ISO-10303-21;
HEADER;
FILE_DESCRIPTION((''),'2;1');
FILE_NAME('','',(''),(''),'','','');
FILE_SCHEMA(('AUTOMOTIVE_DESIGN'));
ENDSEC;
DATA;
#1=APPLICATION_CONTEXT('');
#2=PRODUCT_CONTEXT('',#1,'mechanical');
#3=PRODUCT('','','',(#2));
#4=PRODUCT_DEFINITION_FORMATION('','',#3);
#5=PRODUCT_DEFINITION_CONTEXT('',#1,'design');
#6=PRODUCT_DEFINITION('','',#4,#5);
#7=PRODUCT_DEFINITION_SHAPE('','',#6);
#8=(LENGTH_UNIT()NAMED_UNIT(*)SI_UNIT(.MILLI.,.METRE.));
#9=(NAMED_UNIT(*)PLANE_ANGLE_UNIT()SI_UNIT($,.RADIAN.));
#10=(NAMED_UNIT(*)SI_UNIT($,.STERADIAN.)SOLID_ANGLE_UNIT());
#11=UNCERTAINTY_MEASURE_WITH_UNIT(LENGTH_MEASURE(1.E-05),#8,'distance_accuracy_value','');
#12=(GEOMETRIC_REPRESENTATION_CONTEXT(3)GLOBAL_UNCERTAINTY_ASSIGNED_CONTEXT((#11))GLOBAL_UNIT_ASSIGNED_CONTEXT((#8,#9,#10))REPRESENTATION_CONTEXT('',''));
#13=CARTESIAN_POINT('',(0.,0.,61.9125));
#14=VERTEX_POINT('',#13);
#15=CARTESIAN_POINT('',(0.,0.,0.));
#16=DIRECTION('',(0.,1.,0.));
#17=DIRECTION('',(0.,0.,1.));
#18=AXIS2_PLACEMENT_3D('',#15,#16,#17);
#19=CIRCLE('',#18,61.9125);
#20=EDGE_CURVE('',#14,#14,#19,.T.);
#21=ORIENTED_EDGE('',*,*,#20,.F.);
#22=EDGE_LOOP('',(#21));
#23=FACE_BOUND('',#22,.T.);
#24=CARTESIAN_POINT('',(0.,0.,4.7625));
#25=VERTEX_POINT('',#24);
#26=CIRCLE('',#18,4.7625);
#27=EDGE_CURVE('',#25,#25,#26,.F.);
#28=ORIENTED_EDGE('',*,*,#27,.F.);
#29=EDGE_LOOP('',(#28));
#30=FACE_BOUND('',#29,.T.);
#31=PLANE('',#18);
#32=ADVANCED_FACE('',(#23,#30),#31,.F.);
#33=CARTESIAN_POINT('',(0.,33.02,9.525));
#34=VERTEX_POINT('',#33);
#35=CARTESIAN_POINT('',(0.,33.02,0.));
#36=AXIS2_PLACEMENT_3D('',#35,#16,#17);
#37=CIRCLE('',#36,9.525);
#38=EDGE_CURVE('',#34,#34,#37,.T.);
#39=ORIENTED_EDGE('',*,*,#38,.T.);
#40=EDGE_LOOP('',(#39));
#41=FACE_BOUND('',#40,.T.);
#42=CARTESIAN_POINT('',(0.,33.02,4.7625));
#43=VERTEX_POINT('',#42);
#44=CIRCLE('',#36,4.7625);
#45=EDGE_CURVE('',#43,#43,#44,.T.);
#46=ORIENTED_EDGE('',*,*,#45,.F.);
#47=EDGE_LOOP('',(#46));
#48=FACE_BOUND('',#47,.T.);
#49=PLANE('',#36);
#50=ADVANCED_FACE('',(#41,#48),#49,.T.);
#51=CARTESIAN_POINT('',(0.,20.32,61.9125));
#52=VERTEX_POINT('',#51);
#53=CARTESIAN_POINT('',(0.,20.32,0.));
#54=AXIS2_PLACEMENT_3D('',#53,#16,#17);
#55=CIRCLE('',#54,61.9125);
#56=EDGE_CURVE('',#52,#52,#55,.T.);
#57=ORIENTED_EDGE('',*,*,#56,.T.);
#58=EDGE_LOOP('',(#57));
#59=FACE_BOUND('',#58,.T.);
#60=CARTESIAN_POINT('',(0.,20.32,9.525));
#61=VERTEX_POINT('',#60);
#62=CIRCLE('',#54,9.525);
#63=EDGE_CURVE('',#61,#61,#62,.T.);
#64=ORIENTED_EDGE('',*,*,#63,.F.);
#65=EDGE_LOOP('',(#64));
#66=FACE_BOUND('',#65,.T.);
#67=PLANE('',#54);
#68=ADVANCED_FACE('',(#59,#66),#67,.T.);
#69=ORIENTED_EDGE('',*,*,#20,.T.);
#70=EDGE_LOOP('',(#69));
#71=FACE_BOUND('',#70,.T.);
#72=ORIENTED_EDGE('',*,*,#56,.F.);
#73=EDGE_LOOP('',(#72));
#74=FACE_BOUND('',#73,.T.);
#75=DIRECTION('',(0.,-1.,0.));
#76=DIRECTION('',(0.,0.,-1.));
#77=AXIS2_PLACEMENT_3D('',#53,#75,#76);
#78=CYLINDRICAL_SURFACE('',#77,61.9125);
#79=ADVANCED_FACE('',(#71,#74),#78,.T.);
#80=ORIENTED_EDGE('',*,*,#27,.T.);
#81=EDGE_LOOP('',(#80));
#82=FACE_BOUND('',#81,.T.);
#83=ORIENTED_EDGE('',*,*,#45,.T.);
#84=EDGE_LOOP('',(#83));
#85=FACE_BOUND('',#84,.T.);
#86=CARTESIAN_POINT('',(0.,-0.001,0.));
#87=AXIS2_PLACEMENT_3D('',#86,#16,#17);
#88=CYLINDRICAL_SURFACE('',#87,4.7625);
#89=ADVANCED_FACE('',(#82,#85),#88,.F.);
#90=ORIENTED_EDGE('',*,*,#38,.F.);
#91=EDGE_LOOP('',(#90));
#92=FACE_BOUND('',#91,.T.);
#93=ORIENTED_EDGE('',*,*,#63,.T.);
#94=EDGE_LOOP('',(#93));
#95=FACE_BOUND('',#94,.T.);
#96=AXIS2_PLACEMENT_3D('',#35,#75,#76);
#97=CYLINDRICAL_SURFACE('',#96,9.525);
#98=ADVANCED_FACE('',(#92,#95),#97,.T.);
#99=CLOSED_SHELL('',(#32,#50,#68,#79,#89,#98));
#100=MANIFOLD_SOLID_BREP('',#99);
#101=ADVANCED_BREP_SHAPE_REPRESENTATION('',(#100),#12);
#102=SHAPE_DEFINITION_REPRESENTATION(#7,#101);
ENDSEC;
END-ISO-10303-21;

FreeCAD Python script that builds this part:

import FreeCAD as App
import Part
import Sketcher
Q = App.Units.Quantity

doc = App.newDocument("Part")
body = doc.addObject("PartDesign::Body", "Body")

# Sketch on XZ plane
sketch1 = doc.addObject("Sketcher::SketchObject", "Sketch")
body.addObject(sketch1)
sketch1.AttachmentSupport = (doc.XZ_Plane, [""])
sketch1.MapMode = "FlatFace"
sketch1.addGeometry(Part.Circle(App.Vector(0, 0, 0), App.Vector(0, 0, 1), 62), False)
sketch1.addConstraint([
    Sketcher.Constraint("Coincident", 0, 3, -1, 1),
    Sketcher.Constraint("Diameter", 0, Q("4.875 in")),
])
pad1 = doc.addObject("PartDesign::Pad", "Pad")
body.addObject(pad1)
pad1.Profile = sketch1
pad1.Length = Q("0.8 in")
pad1.Reversed = True

# Sketch on XZ plane
sketch2 = doc.addObject("Sketcher::SketchObject", "Sketch001")
body.addObject(sketch2)
sketch2.AttachmentSupport = (doc.XZ_Plane, [""])
sketch2.MapMode = "FlatFace"
sketch2.AttachmentOffset = App.Placement(App.Vector(0, 0, -0.8 * 25.4), App.Rotation())
sketch2.addGeometry(Part.Circle(App.Vector(0, 0, 0), App.Vector(0, 0, 1), 10), False)
sketch2.addConstraint([
    Sketcher.Constraint("Coincident", 0, 3, -1, 1),
    Sketcher.Constraint("Diameter", 0, Q("0.75 in")),
])
pad2 = doc.addObject("PartDesign::Pad", "Pad001")
body.addObject(pad2)
pad2.Profile = sketch2
pad2.Length = Q("0.5 in")
pad2.Reversed = True

# Sketch on XZ plane
sketch3 = doc.addObject("Sketcher::SketchObject", "Sketch002")
body.addObject(sketch3)
sketch3.AttachmentSupport = (doc.XZ_Plane, [""])
sketch3.MapMode = "FlatFace"
sketch3.AttachmentOffset = App.Placement(App.Vector(0, 0, -1.3 * 25.4), App.Rotation())
sketch3.addGeometry(Part.Circle(App.Vector(0, 0, 0), App.Vector(0, 0, 1), 4.8), False)
sketch3.addConstraint([
    Sketcher.Constraint("Coincident", 0, 3, -1, 1),
    Sketcher.Constraint("Diameter", 0, Q("0.375 in")),
])
pocket1 = doc.addObject("PartDesign::Pocket", "Pocket")
body.addObject(pocket1)
pocket1.Profile = sketch3
pocket1.Type = "UpToFirst"
pocket1.Reversed = True

doc.recompute()
